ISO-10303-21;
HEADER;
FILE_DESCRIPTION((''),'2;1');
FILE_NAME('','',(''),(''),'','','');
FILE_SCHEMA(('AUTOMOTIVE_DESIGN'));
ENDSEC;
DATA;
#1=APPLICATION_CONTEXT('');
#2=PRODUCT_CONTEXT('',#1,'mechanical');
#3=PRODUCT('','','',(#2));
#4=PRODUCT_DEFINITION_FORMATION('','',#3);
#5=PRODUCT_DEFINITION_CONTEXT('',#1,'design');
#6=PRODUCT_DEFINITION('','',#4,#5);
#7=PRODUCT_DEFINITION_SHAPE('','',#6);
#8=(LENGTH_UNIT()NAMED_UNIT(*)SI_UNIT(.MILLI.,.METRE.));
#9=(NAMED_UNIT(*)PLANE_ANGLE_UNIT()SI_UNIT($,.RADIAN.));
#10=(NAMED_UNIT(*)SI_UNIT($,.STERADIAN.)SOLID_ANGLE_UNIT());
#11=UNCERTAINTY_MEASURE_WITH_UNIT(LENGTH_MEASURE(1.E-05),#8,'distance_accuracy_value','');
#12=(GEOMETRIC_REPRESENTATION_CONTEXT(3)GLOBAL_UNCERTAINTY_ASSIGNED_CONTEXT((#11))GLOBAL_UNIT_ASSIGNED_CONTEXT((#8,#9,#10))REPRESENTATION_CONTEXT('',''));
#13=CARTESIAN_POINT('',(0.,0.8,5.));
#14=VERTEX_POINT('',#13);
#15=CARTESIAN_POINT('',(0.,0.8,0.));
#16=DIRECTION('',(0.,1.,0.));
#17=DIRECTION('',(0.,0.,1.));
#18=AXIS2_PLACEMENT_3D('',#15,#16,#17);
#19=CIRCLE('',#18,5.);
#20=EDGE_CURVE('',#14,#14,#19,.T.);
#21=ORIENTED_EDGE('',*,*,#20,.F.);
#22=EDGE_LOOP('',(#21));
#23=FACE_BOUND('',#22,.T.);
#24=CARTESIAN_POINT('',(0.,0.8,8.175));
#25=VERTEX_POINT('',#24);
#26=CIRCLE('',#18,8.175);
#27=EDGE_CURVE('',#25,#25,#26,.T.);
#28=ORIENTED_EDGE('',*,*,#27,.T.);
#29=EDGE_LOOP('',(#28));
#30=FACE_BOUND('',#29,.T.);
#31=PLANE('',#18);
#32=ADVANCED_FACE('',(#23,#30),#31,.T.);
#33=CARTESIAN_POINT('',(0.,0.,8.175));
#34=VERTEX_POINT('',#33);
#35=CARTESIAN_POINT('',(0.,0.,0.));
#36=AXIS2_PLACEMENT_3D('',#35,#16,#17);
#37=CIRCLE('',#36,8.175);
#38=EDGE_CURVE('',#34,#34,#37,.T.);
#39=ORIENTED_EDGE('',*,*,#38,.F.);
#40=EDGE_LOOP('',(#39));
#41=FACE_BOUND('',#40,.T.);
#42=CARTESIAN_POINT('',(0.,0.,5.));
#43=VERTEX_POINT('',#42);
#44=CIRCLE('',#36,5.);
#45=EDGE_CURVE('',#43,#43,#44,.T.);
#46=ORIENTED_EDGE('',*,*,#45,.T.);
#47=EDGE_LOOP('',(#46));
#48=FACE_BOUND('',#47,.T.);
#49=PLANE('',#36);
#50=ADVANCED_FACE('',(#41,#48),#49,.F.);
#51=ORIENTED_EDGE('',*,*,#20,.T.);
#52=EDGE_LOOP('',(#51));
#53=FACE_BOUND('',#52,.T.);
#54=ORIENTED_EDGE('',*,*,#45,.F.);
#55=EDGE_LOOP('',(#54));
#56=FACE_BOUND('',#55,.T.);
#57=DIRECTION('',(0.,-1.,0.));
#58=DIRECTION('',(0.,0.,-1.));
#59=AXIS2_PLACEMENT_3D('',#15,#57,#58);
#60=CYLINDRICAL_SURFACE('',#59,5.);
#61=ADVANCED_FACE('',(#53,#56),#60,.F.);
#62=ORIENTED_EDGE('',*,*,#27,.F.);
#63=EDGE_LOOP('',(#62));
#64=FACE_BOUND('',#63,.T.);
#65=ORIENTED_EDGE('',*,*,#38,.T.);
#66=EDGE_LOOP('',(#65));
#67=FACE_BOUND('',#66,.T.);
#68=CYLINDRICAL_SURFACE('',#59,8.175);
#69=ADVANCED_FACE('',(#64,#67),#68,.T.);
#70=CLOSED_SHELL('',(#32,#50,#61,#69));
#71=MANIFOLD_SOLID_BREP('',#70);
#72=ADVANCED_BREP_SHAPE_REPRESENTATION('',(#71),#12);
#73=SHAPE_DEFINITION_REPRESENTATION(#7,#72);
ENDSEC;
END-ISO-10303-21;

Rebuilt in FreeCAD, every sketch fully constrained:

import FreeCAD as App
import Part
import Sketcher
from FreeCAD import Vector
Q = App.Units.Quantity

doc = App.newDocument("Part")
body = doc.addObject("PartDesign::Body", "Body")

sketch1 = body.newObject("Sketcher::SketchObject", "Sketch")
sketch1.AttachmentSupport = (doc.getObject("XZ_Plane"), [""])
sketch1.MapMode = "FlatFace"
sketch1.addGeometry(Part.Circle(Vector(0, 0, 0), Vector(0, 0, 1), 8.175), False)
sketch1.addGeometry(Part.Circle(Vector(0, 0, 0), Vector(0, 0, 1), 5), False)
sketch1.addConstraint(Sketcher.Constraint("Coincident", 0, 3, -1, 1))
sketch1.addConstraint(Sketcher.Constraint("Coincident", 1, 3, -1, 1))
sketch1.addConstraint(Sketcher.Constraint("Diameter", 1, Q("10 mm")))
sketch1.addConstraint(Sketcher.Constraint("Diameter", 0, Q("16.35 mm")))
pad1 = body.newObject("PartDesign::Pad", "Pad")
pad1.Profile = sketch1
pad1.Length = 0.8
pad1.Reversed = True

doc.recompute()
